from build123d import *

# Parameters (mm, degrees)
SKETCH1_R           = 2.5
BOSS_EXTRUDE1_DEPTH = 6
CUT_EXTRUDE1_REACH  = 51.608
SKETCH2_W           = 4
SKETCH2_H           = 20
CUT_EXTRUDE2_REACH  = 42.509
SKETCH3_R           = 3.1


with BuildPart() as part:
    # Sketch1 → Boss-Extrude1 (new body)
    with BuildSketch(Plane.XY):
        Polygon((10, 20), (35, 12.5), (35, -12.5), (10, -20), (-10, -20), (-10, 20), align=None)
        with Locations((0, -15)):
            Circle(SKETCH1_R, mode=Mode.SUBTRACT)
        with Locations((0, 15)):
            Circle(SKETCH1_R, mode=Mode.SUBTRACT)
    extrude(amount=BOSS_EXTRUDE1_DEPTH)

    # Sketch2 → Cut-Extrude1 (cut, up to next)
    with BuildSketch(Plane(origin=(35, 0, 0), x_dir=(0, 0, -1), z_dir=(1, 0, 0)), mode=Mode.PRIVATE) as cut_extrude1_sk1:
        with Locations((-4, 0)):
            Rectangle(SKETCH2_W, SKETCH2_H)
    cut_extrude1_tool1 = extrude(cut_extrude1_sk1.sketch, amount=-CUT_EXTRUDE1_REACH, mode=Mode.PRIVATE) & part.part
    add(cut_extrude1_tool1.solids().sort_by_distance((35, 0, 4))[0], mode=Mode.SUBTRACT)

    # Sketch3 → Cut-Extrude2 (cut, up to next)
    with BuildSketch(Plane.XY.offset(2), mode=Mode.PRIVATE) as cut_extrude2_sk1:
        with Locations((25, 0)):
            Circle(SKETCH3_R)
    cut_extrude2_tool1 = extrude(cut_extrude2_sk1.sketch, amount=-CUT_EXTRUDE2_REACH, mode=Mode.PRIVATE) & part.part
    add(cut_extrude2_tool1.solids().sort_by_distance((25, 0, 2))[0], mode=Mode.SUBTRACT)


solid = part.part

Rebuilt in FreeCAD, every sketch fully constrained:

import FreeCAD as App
import Part
import Sketcher

V = App.Vector
Q = App.Units.Quantity


def add_polygon(sketch, points):
    """Adds a closed chain of lines whose ends are joined by coincident constraints."""
    first, n = sketch.GeometryCount, len(points)
    for a, b in zip(points, points[1:] + points[:1]):
        sketch.addGeometry(Part.LineSegment(App.Vector(*a, 0), App.Vector(*b, 0)), False)
    for i in range(n):
        sketch.addConstraint(Sketcher.Constraint("Coincident", first + i, 2, first + (i + 1) % n, 1))

doc = App.newDocument("Part")
body = doc.addObject("PartDesign::Body", "Body")

# Sketch on XY plane
sketch1 = doc.addObject("Sketcher::SketchObject", "Sketch")
body.addObject(sketch1)
sketch1.AttachmentSupport = (doc.XY_Plane, [""])
sketch1.MapMode = "FlatFace"
add_polygon(sketch1, [(35, 12.5), (10, 20), (-10, 20), (-10, -20), (10, -20), (35, -12.5)])  # lines 0-5
sketch1.addGeometry(Part.Circle(V(0, -15, 0), V(0, 0, 1), 2.5), False)  # 6
sketch1.addGeometry(Part.Circle(V(0, 15, 0), V(0, 0, 1), 2.5), False)  # 7
sketch1.addConstraint(Sketcher.Constraint("Horizontal", 1))
sketch1.addConstraint(Sketcher.Constraint("Vertical", 2))
sketch1.addConstraint(Sketcher.Constraint("Horizontal", 3))
sketch1.addConstraint(Sketcher.Constraint("Vertical", 5))
sketch1.addConstraint(Sketcher.Constraint("Equal", 6, 7))
sketch1.addConstraint(Sketcher.Constraint("Symmetric", 6, 3, 7, 3, -1, 1))
sketch1.addConstraint(Sketcher.Constraint("Symmetric", 0, 2, 2, 2, -1, 1))
sketch1.addConstraint(Sketcher.Constraint("PointOnObject", 6, 3, -2))
sketch1.addConstraint(Sketcher.Constraint("Vertical", 0, 2, 3, 2))
sketch1.addConstraint(Sketcher.Constraint("Equal", 0, 4))
sketch1.addConstraint(Sketcher.Constraint("Diameter", 6, Q("5 mm")))
sketch1.addConstraint(Sketcher.Constraint("DistanceX", 1, 2, 1, 1, Q("20 mm")))
sketch1.addConstraint(Sketcher.Constraint("DistanceY", 2, 2, 2, 1, Q("40 mm")))
sketch1.addConstraint(Sketcher.Constraint("DistanceY", 5, 1, 5, 2, Q("25 mm")))
sketch1.addConstraint(Sketcher.Constraint("DistanceY", 6, 3, -1, 1, Q("15 mm")))
sketch1.addConstraint(Sketcher.Constraint("DistanceX", -1, 1, 4, 2, Q("35 mm")))
pad1 = doc.addObject("PartDesign::Pad", "Pad")
body.addObject(pad1)
pad1.Profile = sketch1
pad1.Length = 6

# Sketch on YZ plane
sketch2 = doc.addObject("Sketcher::SketchObject", "Sketch001")
body.addObject(sketch2)
sketch2.AttachmentSupport = (doc.YZ_Plane, [""])
sketch2.MapMode = "FlatFace"
sketch2.AttachmentOffset = App.Placement(V(0, 0, 35), App.Rotation())
add_polygon(sketch2, [(10, 6), (-10, 6), (-10, 2), (10, 2)])  # lines 0-3
sketch2.addConstraint(Sketcher.Constraint("Horizontal", 0))
sketch2.addConstraint(Sketcher.Constraint("Vertical", 1))
sketch2.addConstraint(Sketcher.Constraint("Horizontal", 2))
sketch2.addConstraint(Sketcher.Constraint("Vertical", 3))
sketch2.addConstraint(Sketcher.Constraint("DistanceX", 0, 2, 0, 1, Q("20 mm")))
sketch2.addConstraint(Sketcher.Constraint("DistanceY", 1, 2, 1, 1, Q("4 mm")))
sketch2.addConstraint(Sketcher.Constraint("DistanceX", 0, 2, -1, 1, Q("10 mm")))
sketch2.addConstraint(Sketcher.Constraint("DistanceY", -1, 1, 0, 2, Q("6 mm")))
pocket1 = doc.addObject("PartDesign::Pocket", "Pocket")
body.addObject(pocket1)
pocket1.Profile = sketch2
pocket1.Type = "UpToFirst"

# Sketch on XY plane
sketch3 = doc.addObject("Sketcher::SketchObject", "Sketch002")
body.addObject(sketch3)
sketch3.AttachmentSupport = (doc.XY_Plane, [""])
sketch3.MapMode = "FlatFace"
sketch3.AttachmentOffset = App.Placement(V(0, 0, 2), App.Rotation())
sketch3.addGeometry(Part.Circle(V(25, 0, 0), V(0, 0, 1), 3.1), False)
sketch3.addConstraint(Sketcher.Constraint("PointOnObject", 0, 3, -1))
sketch3.addConstraint(Sketcher.Constraint("Diameter", 0, Q("6.2 mm")))
sketch3.addConstraint(Sketcher.Constraint("DistanceX", -1, 1, 0, 3, Q("25 mm")))
pocket2 = doc.addObject("PartDesign::Pocket", "Pocket001")
body.addObject(pocket2)
pocket2.Profile = sketch3
pocket2.Type = "UpToFirst"

doc.recompute()
